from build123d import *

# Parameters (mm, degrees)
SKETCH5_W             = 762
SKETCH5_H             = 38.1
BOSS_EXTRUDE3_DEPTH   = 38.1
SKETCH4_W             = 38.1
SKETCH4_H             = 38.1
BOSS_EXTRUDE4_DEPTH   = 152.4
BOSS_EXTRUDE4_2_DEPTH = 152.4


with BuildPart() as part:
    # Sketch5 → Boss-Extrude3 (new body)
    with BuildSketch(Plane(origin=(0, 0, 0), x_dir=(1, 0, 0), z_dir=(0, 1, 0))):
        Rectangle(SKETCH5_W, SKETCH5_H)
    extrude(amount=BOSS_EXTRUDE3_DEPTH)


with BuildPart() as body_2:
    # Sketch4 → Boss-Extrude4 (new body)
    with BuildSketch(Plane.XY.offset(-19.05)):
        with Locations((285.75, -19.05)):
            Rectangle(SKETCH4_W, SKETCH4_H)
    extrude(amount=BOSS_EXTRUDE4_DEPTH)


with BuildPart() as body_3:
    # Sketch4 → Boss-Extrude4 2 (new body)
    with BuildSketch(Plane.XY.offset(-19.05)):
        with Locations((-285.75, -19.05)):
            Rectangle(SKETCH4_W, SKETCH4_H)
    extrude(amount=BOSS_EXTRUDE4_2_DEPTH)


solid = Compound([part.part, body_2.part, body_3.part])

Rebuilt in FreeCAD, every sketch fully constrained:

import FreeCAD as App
import Part
import Sketcher

V = App.Vector
Q = App.Units.Quantity

doc = App.newDocument("Part")
body = doc.addObject("PartDesign::Body", "Body")

sketch1 = doc.addObject("Sketcher::SketchObject", "Sketch")
body.addObject(sketch1)
sketch1.AttachmentSupport = (doc.XZ_Plane, [""])
sketch1.MapMode = "FlatFace"
sketch1.addGeometry([
    Part.LineSegment(V(-381, -19, 0), V(-381, 19, 0)),
    Part.LineSegment(V(-381, 19, 0), V(381, 19, 0)),
    Part.LineSegment(V(381, 19, 0), V(381, -19, 0)),
    Part.LineSegment(V(381, -19, 0), V(-381, -19, 0)),
], False)
sketch1.addConstraint([
    Sketcher.Constraint("Coincident", 0, 2, 1, 1),
    Sketcher.Constraint("Coincident", 1, 2, 2, 1),
    Sketcher.Constraint("Coincident", 2, 2, 3, 1),
    Sketcher.Constraint("Coincident", 3, 2, 0, 1),
    Sketcher.Constraint("Vertical", 0),
    Sketcher.Constraint("Horizontal", 1),
    Sketcher.Constraint("Vertical", 2),
    Sketcher.Constraint("Horizontal", 3),
    Sketcher.Constraint("Symmetric", 0, 2, 2, 2, -1, 1),
    Sketcher.Constraint("DistanceX", 1, 1, 1, 2, Q("30 in")),
    Sketcher.Constraint("DistanceY", 0, 1, 0, 2, Q("1.5 in")),
])
pad1 = doc.addObject("PartDesign::Pad", "Pad")
body.addObject(pad1)
pad1.Profile = sketch1
pad1.Length = Q("1.5 in")
pad1.Reversed = True
body2 = doc.addObject("PartDesign::Body", "Body001")

sketch2 = doc.addObject("Sketcher::SketchObject", "Sketch001")
body2.addObject(sketch2)
sketch2.AttachmentSupport = (doc.getObject("XY_Plane001"), [""])
sketch2.MapMode = "FlatFace"
sketch2.AttachmentOffset = App.Placement(V(0, 0, -0.75 * 25.4), App.Rotation())
sketch2.addGeometry([
    Part.LineSegment(V(267, 0, 0), V(267, -38, 0)),
    Part.LineSegment(V(267, -38, 0), V(305, -38, 0)),
    Part.LineSegment(V(305, -38, 0), V(305, 0, 0)),
    Part.LineSegment(V(305, 0, 0), V(267, 0, 0)),
], False)
sketch2.addConstraint([
    Sketcher.Constraint("Coincident", 0, 2, 1, 1),
    Sketcher.Constraint("Coincident", 1, 2, 2, 1),
    Sketcher.Constraint("Coincident", 2, 2, 3, 1),
    Sketcher.Constraint("Coincident", 3, 2, 0, 1),
    Sketcher.Constraint("Vertical", 0),
    Sketcher.Constraint("Horizontal", 1),
    Sketcher.Constraint("Vertical", 2),
    Sketcher.Constraint("Horizontal", 3),
    Sketcher.Constraint("PointOnObject", 2, 2, -1),
    Sketcher.Constraint("Equal", 3, 0),
    Sketcher.Constraint("DistanceX", 1, 1, 1, 2, Q("1.5 in")),
    Sketcher.Constraint("DistanceX", -1, 1, 1, 2, Q("12 in")),
])
pad2 = doc.addObject("PartDesign::Pad", "Pad001")
body2.addObject(pad2)
pad2.Profile = sketch2
pad2.Length = Q("6 in")
body3 = doc.addObject("PartDesign::Body", "Body002")

sketch3 = doc.addObject("Sketcher::SketchObject", "Sketch002")
body3.addObject(sketch3)
sketch3.AttachmentSupport = (doc.getObject("XY_Plane002"), [""])
sketch3.MapMode = "FlatFace"
sketch3.AttachmentOffset = App.Placement(V(0, 0, -0.75 * 25.4), App.Rotation())
sketch3.addGeometry([
    Part.LineSegment(V(-305, 0, 0), V(-305, -38, 0)),
    Part.LineSegment(V(-305, -38, 0), V(-267, -38, 0)),
    Part.LineSegment(V(-267, -38, 0), V(-267, 0, 0)),
    Part.LineSegment(V(-267, 0, 0), V(-305, 0, 0)),
], False)
sketch3.addConstraint([
    Sketcher.Constraint("Coincident", 0, 2, 1, 1),
    Sketcher.Constraint("Coincident", 1, 2, 2, 1),
    Sketcher.Constraint("Coincident", 2, 2, 3, 1),
    Sketcher.Constraint("Coincident", 3, 2, 0, 1),
    Sketcher.Constraint("Vertical", 0),
    Sketcher.Constraint("Horizontal", 1),
    Sketcher.Constraint("Vertical", 2),
    Sketcher.Constraint("Horizontal", 3),
    Sketcher.Constraint("PointOnObject", 2, 2, -1),
    Sketcher.Constraint("Equal", 3, 0),
    Sketcher.Constraint("DistanceX", 1, 1, 1, 2, Q("1.5 in")),
    Sketcher.Constraint("DistanceX", 0, 2, -1, 1, Q("12 in")),
])
pad3 = doc.addObject("PartDesign::Pad", "Pad002")
body3.addObject(pad3)
pad3.Profile = sketch3
pad3.Length = Q("6 in")

doc.recompute()
